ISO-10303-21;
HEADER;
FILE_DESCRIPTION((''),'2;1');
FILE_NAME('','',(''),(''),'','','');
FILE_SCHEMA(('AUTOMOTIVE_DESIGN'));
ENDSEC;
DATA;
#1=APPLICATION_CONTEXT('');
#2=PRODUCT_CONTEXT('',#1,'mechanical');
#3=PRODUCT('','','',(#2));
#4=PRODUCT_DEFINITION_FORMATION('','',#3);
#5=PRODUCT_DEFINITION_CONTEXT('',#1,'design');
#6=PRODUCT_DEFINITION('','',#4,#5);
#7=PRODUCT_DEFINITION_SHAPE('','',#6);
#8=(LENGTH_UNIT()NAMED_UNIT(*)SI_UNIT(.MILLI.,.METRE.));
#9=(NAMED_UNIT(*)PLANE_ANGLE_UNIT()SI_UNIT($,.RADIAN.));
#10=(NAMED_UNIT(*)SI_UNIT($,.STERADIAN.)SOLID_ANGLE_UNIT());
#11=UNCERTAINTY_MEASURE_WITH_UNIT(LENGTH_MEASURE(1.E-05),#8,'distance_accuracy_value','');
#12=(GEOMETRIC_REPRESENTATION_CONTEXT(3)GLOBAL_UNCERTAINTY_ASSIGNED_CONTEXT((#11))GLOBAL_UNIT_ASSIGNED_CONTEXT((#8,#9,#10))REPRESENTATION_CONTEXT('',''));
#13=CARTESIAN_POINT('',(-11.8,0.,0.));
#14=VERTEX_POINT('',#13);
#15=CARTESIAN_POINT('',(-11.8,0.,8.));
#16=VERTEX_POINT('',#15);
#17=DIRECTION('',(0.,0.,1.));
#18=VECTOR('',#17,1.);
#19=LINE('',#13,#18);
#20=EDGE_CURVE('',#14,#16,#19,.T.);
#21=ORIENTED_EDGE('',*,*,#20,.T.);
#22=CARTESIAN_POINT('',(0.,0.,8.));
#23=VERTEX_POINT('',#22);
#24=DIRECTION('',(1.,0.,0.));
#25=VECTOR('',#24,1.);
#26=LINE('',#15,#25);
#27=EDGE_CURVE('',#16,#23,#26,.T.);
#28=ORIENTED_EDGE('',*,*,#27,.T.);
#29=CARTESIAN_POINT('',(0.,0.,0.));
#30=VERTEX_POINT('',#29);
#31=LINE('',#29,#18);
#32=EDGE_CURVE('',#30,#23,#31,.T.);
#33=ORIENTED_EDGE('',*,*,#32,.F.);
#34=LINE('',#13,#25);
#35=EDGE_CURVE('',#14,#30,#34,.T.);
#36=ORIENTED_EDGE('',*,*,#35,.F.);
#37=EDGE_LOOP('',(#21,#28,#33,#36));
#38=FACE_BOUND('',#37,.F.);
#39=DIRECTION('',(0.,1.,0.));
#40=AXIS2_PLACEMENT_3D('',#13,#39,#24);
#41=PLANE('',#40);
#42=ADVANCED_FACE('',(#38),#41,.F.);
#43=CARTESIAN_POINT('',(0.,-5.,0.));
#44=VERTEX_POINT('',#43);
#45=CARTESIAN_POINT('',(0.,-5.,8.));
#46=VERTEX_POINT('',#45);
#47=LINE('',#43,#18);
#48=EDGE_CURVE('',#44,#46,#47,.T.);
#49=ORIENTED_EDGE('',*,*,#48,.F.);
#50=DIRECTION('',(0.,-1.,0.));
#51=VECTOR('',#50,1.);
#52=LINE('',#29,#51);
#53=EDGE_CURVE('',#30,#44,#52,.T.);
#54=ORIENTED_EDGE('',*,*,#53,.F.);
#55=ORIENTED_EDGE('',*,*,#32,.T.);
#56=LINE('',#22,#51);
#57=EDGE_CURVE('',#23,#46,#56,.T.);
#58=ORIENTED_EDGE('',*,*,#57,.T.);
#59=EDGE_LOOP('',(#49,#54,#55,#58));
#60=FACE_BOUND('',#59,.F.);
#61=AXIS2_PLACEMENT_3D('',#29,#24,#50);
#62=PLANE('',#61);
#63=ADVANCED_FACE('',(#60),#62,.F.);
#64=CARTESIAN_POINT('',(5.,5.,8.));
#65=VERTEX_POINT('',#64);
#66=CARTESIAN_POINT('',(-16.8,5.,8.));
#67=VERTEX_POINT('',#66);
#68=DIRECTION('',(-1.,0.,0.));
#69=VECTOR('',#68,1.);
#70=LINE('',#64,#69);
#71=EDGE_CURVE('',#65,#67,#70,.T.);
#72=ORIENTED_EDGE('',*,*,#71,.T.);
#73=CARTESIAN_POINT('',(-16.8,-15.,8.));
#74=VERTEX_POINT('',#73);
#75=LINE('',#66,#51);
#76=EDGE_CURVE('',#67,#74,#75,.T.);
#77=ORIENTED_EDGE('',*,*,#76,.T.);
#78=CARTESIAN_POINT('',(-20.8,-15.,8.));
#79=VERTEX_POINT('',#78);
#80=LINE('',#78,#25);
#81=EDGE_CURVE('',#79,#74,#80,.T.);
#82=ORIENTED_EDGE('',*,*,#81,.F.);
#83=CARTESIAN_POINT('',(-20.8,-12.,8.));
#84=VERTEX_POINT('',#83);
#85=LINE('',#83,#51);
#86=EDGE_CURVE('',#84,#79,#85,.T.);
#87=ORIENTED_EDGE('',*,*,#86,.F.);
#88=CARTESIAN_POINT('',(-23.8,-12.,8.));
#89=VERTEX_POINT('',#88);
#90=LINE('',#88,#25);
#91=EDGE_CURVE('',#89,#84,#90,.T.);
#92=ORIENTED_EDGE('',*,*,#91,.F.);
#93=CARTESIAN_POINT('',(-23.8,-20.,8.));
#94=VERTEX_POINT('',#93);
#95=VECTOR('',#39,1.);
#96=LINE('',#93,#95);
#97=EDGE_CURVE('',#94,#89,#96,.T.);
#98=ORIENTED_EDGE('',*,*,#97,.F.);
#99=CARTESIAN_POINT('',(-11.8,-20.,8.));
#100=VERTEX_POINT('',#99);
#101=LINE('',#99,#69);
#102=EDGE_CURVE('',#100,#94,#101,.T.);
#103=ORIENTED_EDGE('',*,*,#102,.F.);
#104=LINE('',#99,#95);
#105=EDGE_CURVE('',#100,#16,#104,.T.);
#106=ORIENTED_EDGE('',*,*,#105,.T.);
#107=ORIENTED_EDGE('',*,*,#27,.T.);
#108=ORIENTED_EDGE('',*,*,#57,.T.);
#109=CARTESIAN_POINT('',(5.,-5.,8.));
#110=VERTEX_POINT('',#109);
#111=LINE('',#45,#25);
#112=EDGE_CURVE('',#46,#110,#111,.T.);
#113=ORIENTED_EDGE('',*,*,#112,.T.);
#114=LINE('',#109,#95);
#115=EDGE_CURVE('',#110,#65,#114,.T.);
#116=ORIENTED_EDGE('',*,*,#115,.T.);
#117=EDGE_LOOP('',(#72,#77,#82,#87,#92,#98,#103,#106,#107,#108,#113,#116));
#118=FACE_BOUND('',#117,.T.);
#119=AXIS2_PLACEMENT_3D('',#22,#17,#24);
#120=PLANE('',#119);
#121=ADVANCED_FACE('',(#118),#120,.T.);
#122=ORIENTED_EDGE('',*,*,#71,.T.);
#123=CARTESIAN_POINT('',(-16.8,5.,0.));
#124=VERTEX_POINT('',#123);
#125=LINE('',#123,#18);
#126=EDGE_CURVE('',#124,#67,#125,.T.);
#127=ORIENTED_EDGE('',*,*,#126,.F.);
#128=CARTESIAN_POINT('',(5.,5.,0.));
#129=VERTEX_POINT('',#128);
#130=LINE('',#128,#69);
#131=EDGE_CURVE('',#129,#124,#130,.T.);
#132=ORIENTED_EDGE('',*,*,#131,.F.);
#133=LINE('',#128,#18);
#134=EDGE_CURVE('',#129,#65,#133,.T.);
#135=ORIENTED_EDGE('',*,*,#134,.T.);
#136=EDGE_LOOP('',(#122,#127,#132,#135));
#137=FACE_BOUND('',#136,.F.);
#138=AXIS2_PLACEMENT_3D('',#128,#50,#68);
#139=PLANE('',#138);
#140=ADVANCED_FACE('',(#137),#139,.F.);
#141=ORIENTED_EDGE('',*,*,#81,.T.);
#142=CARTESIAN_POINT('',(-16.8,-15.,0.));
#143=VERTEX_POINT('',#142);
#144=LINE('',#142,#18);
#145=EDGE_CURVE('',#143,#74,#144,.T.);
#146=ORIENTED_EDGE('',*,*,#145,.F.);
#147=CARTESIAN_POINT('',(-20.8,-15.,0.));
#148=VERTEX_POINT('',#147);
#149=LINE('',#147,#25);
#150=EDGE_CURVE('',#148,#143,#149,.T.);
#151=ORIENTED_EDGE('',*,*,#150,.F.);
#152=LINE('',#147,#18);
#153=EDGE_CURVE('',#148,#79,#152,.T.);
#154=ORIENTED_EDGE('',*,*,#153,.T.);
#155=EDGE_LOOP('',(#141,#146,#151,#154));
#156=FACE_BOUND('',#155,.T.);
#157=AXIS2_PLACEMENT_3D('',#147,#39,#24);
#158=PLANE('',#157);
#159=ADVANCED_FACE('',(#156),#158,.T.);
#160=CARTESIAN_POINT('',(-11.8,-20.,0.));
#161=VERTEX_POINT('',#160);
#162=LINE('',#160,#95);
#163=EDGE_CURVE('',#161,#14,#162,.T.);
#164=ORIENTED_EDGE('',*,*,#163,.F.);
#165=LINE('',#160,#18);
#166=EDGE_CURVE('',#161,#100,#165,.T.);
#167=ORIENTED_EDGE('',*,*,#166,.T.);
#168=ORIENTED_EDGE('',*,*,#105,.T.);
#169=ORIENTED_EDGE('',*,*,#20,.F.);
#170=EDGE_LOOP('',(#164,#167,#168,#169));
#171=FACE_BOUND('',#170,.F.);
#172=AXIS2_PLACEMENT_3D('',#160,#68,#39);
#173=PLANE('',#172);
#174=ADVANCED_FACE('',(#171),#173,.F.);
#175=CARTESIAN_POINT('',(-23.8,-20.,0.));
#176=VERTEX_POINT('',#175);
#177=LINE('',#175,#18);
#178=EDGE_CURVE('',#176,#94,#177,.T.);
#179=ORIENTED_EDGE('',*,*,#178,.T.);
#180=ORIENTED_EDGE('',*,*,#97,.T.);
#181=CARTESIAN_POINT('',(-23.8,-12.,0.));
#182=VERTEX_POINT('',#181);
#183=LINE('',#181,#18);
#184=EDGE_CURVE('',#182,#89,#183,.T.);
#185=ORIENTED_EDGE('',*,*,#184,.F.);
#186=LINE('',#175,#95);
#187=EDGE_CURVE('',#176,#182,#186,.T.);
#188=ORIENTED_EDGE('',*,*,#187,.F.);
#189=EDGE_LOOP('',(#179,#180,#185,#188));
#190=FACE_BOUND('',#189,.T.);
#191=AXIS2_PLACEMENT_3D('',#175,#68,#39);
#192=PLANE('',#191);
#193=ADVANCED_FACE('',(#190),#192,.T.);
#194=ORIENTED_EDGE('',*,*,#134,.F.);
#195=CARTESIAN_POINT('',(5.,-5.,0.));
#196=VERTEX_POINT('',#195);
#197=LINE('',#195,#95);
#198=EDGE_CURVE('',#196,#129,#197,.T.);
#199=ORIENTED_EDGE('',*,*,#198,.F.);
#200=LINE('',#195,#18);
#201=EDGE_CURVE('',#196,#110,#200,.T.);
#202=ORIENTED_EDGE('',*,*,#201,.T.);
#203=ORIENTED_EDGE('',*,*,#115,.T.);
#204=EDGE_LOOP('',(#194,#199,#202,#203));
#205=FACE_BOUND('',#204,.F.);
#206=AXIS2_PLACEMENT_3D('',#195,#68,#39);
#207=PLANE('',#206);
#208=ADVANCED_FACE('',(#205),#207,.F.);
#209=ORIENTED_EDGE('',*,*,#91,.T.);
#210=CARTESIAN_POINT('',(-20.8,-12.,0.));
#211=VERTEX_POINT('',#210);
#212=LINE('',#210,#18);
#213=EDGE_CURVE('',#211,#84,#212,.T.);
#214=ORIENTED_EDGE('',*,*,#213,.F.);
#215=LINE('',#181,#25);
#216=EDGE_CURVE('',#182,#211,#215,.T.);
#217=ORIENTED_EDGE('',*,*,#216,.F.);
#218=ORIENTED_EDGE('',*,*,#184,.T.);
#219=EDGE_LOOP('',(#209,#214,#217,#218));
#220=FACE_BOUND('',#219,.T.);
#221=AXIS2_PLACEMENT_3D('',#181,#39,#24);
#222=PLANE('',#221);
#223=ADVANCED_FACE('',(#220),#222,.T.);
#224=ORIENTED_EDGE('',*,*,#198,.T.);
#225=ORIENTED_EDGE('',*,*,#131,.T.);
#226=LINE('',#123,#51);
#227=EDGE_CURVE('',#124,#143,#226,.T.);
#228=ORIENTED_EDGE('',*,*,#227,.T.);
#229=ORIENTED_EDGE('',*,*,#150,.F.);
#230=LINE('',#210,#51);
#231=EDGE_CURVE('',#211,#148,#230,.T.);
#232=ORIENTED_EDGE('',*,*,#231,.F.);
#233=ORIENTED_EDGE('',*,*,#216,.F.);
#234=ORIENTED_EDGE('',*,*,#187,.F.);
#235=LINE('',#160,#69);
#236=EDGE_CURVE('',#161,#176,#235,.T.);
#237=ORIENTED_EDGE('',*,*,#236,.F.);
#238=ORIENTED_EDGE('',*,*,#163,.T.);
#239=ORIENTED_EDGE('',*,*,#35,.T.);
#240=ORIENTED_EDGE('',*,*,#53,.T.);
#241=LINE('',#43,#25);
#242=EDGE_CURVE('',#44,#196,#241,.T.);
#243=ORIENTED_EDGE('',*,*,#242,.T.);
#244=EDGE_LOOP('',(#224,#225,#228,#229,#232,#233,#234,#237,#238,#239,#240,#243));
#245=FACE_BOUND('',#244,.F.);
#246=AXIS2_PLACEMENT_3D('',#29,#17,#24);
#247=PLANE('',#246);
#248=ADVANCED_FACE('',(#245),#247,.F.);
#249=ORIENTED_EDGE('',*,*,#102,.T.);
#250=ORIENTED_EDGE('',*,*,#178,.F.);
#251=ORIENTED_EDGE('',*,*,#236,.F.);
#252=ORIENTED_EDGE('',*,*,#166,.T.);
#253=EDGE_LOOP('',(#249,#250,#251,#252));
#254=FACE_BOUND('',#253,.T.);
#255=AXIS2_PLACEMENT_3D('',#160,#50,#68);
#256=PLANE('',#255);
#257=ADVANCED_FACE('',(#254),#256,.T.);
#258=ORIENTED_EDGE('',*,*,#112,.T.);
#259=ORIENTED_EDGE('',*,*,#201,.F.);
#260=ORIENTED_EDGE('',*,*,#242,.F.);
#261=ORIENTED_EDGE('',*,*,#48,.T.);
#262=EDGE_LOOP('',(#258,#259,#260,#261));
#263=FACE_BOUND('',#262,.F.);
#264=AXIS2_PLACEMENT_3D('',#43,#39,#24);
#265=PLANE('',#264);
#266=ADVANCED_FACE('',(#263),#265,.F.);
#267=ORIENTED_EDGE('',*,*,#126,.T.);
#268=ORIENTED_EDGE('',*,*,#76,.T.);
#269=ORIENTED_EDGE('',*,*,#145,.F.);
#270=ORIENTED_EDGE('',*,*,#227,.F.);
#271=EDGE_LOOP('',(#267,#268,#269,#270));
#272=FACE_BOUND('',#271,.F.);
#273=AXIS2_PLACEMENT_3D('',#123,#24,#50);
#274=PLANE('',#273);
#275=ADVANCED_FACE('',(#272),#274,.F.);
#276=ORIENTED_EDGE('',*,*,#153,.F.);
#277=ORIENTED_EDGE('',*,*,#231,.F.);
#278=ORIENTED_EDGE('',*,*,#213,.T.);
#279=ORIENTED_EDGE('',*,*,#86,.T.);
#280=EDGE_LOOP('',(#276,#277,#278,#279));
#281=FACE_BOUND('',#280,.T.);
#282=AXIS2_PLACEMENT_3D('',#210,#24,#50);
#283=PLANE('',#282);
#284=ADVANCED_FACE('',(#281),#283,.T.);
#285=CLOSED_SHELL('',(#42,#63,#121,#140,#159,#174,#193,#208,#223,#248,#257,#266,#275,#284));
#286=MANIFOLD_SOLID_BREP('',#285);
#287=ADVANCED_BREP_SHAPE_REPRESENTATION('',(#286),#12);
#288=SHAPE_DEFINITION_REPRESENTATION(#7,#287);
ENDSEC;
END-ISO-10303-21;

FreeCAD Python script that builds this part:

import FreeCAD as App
import Part
import Sketcher

doc = App.newDocument("Part")
body = doc.addObject("PartDesign::Body", "Body")

# Sketch on XY plane
sketch1 = body.newObject("Sketcher::SketchObject", "Sketch")
sketch1.AttachmentSupport = (doc.getObject("XY_Plane"), [""])
sketch1.MapMode = "FlatFace"
sketch1.addGeometry([
    Part.LineSegment(App.Vector(-23.8, -20, 0), App.Vector(-11.8, -20, 0)),  # 0
    Part.LineSegment(App.Vector(-11.8, -20, 0), App.Vector(-11.8, 0, 0)),  # 1
    Part.LineSegment(App.Vector(-11.8, 0, 0), App.Vector(0, 0, 0)),  # 2
    Part.LineSegment(App.Vector(0, 0, 0), App.Vector(0, -5, 0)),  # 3
    Part.LineSegment(App.Vector(0, -5, 0), App.Vector(5, -5, 0)),  # 4
    Part.LineSegment(App.Vector(5, -5, 0), App.Vector(5, 5, 0)),  # 5
    Part.LineSegment(App.Vector(5, 5, 0), App.Vector(-16.8, 5, 0)),  # 6
    Part.LineSegment(App.Vector(-16.8, 5, 0), App.Vector(-16.8, -15, 0)),  # 7
    Part.LineSegment(App.Vector(-16.8, -15, 0), App.Vector(-20.8, -15, 0)),  # 8
    Part.LineSegment(App.Vector(-20.8, -15, 0), App.Vector(-20.8, -12, 0)),  # 9
    Part.LineSegment(App.Vector(-20.8, -12, 0), App.Vector(-23.8, -12, 0)),  # 10
    Part.LineSegment(App.Vector(-23.8, -12, 0), App.Vector(-23.8, -20, 0)),  # 11
], False)
sketch1.addConstraint([
    Sketcher.Constraint("Coincident", 0, 2, 1, 1),
    Sketcher.Constraint("Coincident", 1, 2, 2, 1),
    Sketcher.Constraint("Coincident", 2, 2, 3, 1),
    Sketcher.Constraint("Coincident", 3, 2, 4, 1),
    Sketcher.Constraint("Coincident", 4, 2, 5, 1),
    Sketcher.Constraint("Coincident", 5, 2, 6, 1),
    Sketcher.Constraint("Coincident", 6, 2, 7, 1),
    Sketcher.Constraint("Coincident", 7, 2, 8, 1),
    Sketcher.Constraint("Coincident", 8, 2, 9, 1),
    Sketcher.Constraint("Coincident", 9, 2, 10, 1),
    Sketcher.Constraint("Coincident", 10, 2, 11, 1),
    Sketcher.Constraint("Coincident", 11, 2, 0, 1),
    Sketcher.Constraint("Horizontal", 0),
    Sketcher.Constraint("Vertical", 1),
    Sketcher.Constraint("Horizontal", 2),
    Sketcher.Constraint("Vertical", 3),
    Sketcher.Constraint("Horizontal", 4),
    Sketcher.Constraint("Vertical", 5),
    Sketcher.Constraint("Horizontal", 6),
    Sketcher.Constraint("Vertical", 7),
    Sketcher.Constraint("Horizontal", 8),
    Sketcher.Constraint("Vertical", 9),
    Sketcher.Constraint("Horizontal", 10),
    Sketcher.Constraint("Vertical", 11),
    Sketcher.Constraint("Coincident", 2, 2, -1, 1),
    Sketcher.Constraint("Equal", 4, 3),
    Sketcher.Constraint("Equal", 1, 7),
    Sketcher.Constraint("Equal", 10, 9),
    Sketcher.Constraint("DistanceX", 0, 1, 0, 2, 12.0),
    Sketcher.Constraint("DistanceX", 4, 1, 4, 2, 5.0),
    Sketcher.Constraint("DistanceX", 8, 2, 8, 1, 4.0),
    Sketcher.Constraint("DistanceX", 10, 2, 10, 1, 3.0),
    Sketcher.Constraint("DistanceY", 1, 1, 1, 2, 20.0),
    Sketcher.Constraint("DistanceY", 5, 1, 5, 2, 10.0),
    Sketcher.Constraint("DistanceX", 2, 1, 2, 2, 11.8),
])
pad1 = body.newObject("PartDesign::Pad", "Pad")
pad1.Profile = sketch1
pad1.Length = 8

doc.recompute()
